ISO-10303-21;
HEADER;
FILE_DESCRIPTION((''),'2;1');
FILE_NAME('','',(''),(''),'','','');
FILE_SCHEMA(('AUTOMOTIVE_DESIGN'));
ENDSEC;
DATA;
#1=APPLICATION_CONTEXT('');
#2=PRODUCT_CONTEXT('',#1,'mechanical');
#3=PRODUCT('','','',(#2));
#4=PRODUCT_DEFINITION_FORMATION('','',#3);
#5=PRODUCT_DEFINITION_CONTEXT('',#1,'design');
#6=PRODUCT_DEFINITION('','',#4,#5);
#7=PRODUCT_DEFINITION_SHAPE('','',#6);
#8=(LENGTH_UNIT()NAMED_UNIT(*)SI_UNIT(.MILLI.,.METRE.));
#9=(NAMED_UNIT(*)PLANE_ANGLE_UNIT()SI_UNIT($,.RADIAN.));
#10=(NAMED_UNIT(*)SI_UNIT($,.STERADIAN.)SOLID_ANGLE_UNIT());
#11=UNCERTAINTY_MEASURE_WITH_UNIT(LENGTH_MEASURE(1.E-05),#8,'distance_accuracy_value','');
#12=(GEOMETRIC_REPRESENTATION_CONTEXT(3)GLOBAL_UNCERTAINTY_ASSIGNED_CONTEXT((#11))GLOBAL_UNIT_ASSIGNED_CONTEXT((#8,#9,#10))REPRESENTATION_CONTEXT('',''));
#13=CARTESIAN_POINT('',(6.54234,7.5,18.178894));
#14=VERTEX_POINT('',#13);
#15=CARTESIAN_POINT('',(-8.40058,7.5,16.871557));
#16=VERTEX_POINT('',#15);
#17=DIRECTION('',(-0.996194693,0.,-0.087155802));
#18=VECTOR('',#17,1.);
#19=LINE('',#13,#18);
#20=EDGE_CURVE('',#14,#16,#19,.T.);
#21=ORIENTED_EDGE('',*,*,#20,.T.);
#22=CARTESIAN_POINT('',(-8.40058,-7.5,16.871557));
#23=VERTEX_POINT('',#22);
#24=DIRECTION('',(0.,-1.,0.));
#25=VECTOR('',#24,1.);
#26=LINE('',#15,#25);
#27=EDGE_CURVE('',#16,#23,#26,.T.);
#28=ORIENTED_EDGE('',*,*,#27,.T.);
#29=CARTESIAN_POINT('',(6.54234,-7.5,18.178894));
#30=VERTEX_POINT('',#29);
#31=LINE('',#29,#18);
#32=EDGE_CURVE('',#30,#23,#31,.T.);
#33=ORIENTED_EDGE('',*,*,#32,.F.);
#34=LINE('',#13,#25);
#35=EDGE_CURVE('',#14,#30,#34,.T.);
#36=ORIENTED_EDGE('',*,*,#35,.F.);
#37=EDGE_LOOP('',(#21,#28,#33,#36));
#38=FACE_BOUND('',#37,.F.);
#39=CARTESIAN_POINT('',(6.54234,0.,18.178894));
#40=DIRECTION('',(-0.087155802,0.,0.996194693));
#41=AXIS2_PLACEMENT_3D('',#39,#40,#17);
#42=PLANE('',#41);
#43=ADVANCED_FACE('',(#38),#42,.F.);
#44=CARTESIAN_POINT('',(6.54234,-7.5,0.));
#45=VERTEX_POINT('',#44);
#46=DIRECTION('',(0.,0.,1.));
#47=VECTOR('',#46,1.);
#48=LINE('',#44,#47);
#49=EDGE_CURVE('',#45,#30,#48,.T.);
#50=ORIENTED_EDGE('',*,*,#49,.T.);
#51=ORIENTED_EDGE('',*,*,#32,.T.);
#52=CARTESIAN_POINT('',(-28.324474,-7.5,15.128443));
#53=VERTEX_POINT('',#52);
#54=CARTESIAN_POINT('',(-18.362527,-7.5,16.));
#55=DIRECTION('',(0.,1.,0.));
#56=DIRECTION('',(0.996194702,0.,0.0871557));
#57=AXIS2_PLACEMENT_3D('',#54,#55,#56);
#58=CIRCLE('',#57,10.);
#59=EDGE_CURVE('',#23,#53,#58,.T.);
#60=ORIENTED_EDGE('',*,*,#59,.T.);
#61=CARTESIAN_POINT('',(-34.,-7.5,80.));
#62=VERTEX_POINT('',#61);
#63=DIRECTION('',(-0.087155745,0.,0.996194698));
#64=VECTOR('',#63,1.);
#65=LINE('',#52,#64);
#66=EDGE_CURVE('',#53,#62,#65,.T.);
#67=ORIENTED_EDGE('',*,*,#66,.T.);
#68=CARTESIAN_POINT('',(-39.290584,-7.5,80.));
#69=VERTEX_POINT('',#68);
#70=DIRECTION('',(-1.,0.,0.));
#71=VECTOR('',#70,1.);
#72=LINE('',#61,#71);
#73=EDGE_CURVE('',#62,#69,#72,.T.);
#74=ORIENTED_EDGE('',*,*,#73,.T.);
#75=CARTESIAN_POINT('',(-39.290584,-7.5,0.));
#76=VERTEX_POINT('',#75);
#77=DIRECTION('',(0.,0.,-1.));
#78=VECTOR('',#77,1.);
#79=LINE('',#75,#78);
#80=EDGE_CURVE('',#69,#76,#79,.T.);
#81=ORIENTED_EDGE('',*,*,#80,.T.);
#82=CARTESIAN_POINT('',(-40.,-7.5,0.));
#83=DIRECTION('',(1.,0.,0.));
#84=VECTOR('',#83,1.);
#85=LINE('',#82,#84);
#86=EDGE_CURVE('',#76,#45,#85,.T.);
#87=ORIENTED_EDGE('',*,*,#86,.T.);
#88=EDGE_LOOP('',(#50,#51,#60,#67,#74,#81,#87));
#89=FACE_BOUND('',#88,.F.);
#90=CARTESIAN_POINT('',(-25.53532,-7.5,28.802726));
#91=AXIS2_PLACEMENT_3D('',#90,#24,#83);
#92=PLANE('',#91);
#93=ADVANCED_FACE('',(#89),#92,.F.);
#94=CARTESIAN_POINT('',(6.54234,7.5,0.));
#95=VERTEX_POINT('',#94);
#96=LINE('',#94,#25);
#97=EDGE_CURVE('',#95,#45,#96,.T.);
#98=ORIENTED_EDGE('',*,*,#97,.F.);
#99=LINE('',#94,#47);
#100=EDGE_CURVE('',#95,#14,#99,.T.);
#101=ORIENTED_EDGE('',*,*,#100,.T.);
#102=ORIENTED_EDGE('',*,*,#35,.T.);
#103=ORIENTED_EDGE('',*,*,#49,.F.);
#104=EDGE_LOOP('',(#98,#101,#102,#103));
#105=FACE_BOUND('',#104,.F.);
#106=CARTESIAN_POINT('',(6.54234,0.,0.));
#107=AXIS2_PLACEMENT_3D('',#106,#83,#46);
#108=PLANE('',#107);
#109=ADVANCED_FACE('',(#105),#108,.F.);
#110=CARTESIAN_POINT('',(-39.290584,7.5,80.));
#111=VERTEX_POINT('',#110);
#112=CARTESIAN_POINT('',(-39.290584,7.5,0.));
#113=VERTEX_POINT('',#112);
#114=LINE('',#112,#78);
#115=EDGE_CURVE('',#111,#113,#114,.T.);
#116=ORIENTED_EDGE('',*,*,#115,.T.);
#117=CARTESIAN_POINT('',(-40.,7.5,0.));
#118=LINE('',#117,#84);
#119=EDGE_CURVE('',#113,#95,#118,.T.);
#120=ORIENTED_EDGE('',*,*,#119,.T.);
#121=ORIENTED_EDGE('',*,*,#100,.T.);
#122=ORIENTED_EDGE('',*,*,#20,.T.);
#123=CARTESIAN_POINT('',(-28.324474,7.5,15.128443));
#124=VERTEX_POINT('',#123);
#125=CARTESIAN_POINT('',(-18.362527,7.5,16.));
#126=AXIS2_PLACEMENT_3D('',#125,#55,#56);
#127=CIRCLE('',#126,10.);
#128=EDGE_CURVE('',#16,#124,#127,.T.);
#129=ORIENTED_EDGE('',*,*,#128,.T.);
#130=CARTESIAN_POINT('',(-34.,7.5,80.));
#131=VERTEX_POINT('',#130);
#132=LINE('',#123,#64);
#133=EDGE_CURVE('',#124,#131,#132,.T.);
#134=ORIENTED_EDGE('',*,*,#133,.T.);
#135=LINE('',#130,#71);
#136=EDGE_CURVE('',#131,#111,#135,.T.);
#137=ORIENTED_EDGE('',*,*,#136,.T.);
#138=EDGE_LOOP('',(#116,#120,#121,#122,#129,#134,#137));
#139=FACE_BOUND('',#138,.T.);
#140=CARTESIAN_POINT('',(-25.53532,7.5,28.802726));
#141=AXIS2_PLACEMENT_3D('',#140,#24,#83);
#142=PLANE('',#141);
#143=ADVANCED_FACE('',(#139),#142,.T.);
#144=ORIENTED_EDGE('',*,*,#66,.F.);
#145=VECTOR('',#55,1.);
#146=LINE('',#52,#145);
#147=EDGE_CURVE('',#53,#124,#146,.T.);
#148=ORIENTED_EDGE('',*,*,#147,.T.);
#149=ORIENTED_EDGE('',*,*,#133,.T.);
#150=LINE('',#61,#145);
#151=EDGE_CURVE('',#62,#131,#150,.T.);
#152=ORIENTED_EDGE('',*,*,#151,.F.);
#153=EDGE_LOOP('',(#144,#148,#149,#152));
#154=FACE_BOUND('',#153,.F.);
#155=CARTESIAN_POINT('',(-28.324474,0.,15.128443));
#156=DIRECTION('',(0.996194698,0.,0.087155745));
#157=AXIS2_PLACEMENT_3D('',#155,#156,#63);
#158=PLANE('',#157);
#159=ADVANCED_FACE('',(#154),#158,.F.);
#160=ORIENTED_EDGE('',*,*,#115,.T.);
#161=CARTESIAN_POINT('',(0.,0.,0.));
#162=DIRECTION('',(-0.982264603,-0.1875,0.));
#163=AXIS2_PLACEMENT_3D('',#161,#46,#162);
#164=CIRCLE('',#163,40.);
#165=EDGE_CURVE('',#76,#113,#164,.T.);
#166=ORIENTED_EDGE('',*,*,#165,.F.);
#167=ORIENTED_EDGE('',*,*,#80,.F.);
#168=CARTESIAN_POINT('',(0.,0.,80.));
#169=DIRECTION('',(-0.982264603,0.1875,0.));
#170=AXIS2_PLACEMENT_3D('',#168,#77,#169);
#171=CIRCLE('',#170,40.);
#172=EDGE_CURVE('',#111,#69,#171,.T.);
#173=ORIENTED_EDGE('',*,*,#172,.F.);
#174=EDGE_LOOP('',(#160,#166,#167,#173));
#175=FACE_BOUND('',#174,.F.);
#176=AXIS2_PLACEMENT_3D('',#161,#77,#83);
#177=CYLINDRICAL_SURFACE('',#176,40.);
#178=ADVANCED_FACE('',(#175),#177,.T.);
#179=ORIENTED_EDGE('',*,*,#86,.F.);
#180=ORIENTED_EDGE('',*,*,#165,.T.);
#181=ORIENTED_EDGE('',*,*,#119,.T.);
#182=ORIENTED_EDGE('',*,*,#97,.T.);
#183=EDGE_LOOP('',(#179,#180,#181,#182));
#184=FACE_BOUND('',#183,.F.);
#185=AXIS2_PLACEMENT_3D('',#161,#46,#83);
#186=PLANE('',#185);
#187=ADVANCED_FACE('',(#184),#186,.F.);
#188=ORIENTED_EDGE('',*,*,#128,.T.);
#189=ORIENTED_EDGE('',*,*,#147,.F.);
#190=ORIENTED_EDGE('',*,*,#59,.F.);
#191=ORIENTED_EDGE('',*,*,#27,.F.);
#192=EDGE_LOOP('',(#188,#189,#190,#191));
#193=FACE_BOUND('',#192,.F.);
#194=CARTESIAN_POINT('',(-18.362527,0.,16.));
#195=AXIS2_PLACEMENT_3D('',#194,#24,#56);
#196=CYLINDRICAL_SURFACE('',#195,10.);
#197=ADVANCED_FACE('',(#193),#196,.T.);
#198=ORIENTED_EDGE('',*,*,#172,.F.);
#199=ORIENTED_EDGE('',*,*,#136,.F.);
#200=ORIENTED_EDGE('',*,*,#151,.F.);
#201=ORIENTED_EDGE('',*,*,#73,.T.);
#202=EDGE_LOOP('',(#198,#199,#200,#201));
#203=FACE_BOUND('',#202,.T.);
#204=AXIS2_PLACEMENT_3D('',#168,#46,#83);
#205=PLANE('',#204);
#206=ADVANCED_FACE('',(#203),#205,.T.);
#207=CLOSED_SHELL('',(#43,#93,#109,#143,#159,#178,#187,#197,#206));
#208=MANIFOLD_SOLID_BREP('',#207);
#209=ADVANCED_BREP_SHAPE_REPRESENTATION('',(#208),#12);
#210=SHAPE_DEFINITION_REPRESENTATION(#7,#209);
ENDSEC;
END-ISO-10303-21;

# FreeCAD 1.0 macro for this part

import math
import FreeCAD as App
import Part
import Sketcher
Q = App.Units.Quantity

doc = App.newDocument("Part")
params = doc.addObject("Spreadsheet::Sheet", "Params")
for row, (alias, value) in enumerate([
    ("sketch1_diameter", "80 mm"),
    ("pad1_length", "80 mm"),
    ("sketch2_radius", "10 mm"),
    ("sketch2_width", "6 mm"),
    ("sketch2_height", "80 mm"),
    ("sketch2_length", "15 mm"),
    ("pocket1_length", "15 mm"),
], start=1):
    params.set(f"A{row}", alias)
    params.set(f"B{row}", "=" + value)
    params.setAlias(f"B{row}", alias)

body = doc.addObject("PartDesign::Body", "Body")

# Sketch on XY plane
sketch1 = doc.addObject("Sketcher::SketchObject", "Sketch")
body.addObject(sketch1)
sketch1.AttachmentSupport = (doc.XY_Plane, [""])
sketch1.MapMode = "FlatFace"
sketch1.addGeometry(Part.Circle(App.Vector(0, 0, 0), App.Vector(0, 0, 1), 40), False)
sketch1.addConstraint(Sketcher.Constraint("Coincident", 0, 3, -1, 1))
sketch1.addConstraint(Sketcher.Constraint("Diameter", 0, Q("80 mm")))
sketch1.setExpression("Constraints[1]", "Params.sketch1_diameter")
pad1 = doc.addObject("PartDesign::Pad", "Pad")
body.addObject(pad1)
pad1.Profile = sketch1
pad1.setExpression("Length", "Params.pad1_length")

# Sketch on XZ plane
sketch2 = doc.addObject("Sketcher::SketchObject", "Sketch001")
body.addObject(sketch2)
sketch2.AttachmentSupport = (doc.XZ_Plane, [""])
sketch2.MapMode = "FlatFace"
sketch2.addGeometry(Part.LineSegment(App.Vector(-40, 80, 0), App.Vector(-40, 0, 0)), False)
sketch2.addGeometry(Part.LineSegment(App.Vector(-40, 0, 0), App.Vector(6.54234, 0, 0)), False)
sketch2.addGeometry(Part.LineSegment(App.Vector(6.54234, 0, 0), App.Vector(6.54234, 18.178894, 0)), False)
sketch2.addGeometry(Part.LineSegment(App.Vector(6.54234, 18.178894, 0), App.Vector(-8.40058, 16.871557, 0)), False)
sketch2.addGeometry(Part.ArcOfCircle(Part.Circle(App.Vector(-18.362527, 16, 0), App.Vector(0, 0, 1), 10), math.radians(-175.000002), math.radians(4.999998)), False)
sketch2.addGeometry(Part.LineSegment(App.Vector(-28.324474, 15.128443, 0), App.Vector(-34, 80, 0)), False)
sketch2.addGeometry(Part.LineSegment(App.Vector(-34, 80, 0), App.Vector(-40, 80, 0)), False)
sketch2.addConstraint(Sketcher.Constraint("Coincident", 0, 2, 1, 1))
sketch2.addConstraint(Sketcher.Constraint("Coincident", 1, 2, 2, 1))
sketch2.addConstraint(Sketcher.Constraint("Coincident", 2, 2, 3, 1))
sketch2.addConstraint(Sketcher.Constraint("Coincident", 3, 2, 4, 2))
sketch2.addConstraint(Sketcher.Constraint("Coincident", 4, 1, 5, 1))
sketch2.addConstraint(Sketcher.Constraint("Coincident", 5, 2, 6, 1))
sketch2.addConstraint(Sketcher.Constraint("Coincident", 6, 2, 0, 1))
sketch2.addConstraint(Sketcher.Constraint("Vertical", 0))
sketch2.addConstraint(Sketcher.Constraint("Horizontal", 1))
sketch2.addConstraint(Sketcher.Constraint("Vertical", 2))
sketch2.addConstraint(Sketcher.Constraint("Horizontal", 6))
sketch2.addConstraint(Sketcher.Constraint("PointOnObject", 0, 2, -1))
sketch2.addConstraint(Sketcher.Constraint("Radius", 4, Q("10 mm")))
sketch2.addConstraint(Sketcher.Constraint("DistanceX", 6, 2, 6, 1, Q("6 mm")))
sketch2.addConstraint(Sketcher.Constraint("DistanceY", 0, 2, 0, 1, Q("80 mm")))
sketch2.addConstraint(Sketcher.Constraint("Distance", 3, Q("15 mm")))
sketch2.addConstraint(Sketcher.Constraint("DistanceY", -1, 1, 4, 3, Q("16 mm")))
sketch2.addConstraint(Sketcher.Constraint("DistanceX", 0, 2, -1, 1, Q("40 mm")))
sketch2.addConstraint(Sketcher.Constraint("DistanceX", 1, 1, 1, 2, Q("46.54234 mm")))
sketch2.addConstraint(Sketcher.Constraint("DistanceY", 2, 1, 2, 2, Q("18.178894 mm")))
sketch2.addConstraint(Sketcher.Constraint("DistanceX", 3, 2, -1, 1, Q("8.40058 mm")))
sketch2.addConstraint(Sketcher.Constraint("DistanceY", 4, 1, 2, 2, Q("3.050451 mm")))
sketch2.setExpression("Constraints[12]", "Params.sketch2_radius")
sketch2.setExpression("Constraints[13]", "Params.sketch2_width")
sketch2.setExpression("Constraints[14]", "Params.sketch2_height")
sketch2.setExpression("Constraints[15]", "Params.sketch2_length")
pocket1 = doc.addObject("PartDesign::Pocket", "Pocket")
body.addObject(pocket1)
pocket1.Profile = sketch2
pocket1.setExpression("Length", "Params.pocket1_length")
pocket1.Midplane = True

doc.recompute()
